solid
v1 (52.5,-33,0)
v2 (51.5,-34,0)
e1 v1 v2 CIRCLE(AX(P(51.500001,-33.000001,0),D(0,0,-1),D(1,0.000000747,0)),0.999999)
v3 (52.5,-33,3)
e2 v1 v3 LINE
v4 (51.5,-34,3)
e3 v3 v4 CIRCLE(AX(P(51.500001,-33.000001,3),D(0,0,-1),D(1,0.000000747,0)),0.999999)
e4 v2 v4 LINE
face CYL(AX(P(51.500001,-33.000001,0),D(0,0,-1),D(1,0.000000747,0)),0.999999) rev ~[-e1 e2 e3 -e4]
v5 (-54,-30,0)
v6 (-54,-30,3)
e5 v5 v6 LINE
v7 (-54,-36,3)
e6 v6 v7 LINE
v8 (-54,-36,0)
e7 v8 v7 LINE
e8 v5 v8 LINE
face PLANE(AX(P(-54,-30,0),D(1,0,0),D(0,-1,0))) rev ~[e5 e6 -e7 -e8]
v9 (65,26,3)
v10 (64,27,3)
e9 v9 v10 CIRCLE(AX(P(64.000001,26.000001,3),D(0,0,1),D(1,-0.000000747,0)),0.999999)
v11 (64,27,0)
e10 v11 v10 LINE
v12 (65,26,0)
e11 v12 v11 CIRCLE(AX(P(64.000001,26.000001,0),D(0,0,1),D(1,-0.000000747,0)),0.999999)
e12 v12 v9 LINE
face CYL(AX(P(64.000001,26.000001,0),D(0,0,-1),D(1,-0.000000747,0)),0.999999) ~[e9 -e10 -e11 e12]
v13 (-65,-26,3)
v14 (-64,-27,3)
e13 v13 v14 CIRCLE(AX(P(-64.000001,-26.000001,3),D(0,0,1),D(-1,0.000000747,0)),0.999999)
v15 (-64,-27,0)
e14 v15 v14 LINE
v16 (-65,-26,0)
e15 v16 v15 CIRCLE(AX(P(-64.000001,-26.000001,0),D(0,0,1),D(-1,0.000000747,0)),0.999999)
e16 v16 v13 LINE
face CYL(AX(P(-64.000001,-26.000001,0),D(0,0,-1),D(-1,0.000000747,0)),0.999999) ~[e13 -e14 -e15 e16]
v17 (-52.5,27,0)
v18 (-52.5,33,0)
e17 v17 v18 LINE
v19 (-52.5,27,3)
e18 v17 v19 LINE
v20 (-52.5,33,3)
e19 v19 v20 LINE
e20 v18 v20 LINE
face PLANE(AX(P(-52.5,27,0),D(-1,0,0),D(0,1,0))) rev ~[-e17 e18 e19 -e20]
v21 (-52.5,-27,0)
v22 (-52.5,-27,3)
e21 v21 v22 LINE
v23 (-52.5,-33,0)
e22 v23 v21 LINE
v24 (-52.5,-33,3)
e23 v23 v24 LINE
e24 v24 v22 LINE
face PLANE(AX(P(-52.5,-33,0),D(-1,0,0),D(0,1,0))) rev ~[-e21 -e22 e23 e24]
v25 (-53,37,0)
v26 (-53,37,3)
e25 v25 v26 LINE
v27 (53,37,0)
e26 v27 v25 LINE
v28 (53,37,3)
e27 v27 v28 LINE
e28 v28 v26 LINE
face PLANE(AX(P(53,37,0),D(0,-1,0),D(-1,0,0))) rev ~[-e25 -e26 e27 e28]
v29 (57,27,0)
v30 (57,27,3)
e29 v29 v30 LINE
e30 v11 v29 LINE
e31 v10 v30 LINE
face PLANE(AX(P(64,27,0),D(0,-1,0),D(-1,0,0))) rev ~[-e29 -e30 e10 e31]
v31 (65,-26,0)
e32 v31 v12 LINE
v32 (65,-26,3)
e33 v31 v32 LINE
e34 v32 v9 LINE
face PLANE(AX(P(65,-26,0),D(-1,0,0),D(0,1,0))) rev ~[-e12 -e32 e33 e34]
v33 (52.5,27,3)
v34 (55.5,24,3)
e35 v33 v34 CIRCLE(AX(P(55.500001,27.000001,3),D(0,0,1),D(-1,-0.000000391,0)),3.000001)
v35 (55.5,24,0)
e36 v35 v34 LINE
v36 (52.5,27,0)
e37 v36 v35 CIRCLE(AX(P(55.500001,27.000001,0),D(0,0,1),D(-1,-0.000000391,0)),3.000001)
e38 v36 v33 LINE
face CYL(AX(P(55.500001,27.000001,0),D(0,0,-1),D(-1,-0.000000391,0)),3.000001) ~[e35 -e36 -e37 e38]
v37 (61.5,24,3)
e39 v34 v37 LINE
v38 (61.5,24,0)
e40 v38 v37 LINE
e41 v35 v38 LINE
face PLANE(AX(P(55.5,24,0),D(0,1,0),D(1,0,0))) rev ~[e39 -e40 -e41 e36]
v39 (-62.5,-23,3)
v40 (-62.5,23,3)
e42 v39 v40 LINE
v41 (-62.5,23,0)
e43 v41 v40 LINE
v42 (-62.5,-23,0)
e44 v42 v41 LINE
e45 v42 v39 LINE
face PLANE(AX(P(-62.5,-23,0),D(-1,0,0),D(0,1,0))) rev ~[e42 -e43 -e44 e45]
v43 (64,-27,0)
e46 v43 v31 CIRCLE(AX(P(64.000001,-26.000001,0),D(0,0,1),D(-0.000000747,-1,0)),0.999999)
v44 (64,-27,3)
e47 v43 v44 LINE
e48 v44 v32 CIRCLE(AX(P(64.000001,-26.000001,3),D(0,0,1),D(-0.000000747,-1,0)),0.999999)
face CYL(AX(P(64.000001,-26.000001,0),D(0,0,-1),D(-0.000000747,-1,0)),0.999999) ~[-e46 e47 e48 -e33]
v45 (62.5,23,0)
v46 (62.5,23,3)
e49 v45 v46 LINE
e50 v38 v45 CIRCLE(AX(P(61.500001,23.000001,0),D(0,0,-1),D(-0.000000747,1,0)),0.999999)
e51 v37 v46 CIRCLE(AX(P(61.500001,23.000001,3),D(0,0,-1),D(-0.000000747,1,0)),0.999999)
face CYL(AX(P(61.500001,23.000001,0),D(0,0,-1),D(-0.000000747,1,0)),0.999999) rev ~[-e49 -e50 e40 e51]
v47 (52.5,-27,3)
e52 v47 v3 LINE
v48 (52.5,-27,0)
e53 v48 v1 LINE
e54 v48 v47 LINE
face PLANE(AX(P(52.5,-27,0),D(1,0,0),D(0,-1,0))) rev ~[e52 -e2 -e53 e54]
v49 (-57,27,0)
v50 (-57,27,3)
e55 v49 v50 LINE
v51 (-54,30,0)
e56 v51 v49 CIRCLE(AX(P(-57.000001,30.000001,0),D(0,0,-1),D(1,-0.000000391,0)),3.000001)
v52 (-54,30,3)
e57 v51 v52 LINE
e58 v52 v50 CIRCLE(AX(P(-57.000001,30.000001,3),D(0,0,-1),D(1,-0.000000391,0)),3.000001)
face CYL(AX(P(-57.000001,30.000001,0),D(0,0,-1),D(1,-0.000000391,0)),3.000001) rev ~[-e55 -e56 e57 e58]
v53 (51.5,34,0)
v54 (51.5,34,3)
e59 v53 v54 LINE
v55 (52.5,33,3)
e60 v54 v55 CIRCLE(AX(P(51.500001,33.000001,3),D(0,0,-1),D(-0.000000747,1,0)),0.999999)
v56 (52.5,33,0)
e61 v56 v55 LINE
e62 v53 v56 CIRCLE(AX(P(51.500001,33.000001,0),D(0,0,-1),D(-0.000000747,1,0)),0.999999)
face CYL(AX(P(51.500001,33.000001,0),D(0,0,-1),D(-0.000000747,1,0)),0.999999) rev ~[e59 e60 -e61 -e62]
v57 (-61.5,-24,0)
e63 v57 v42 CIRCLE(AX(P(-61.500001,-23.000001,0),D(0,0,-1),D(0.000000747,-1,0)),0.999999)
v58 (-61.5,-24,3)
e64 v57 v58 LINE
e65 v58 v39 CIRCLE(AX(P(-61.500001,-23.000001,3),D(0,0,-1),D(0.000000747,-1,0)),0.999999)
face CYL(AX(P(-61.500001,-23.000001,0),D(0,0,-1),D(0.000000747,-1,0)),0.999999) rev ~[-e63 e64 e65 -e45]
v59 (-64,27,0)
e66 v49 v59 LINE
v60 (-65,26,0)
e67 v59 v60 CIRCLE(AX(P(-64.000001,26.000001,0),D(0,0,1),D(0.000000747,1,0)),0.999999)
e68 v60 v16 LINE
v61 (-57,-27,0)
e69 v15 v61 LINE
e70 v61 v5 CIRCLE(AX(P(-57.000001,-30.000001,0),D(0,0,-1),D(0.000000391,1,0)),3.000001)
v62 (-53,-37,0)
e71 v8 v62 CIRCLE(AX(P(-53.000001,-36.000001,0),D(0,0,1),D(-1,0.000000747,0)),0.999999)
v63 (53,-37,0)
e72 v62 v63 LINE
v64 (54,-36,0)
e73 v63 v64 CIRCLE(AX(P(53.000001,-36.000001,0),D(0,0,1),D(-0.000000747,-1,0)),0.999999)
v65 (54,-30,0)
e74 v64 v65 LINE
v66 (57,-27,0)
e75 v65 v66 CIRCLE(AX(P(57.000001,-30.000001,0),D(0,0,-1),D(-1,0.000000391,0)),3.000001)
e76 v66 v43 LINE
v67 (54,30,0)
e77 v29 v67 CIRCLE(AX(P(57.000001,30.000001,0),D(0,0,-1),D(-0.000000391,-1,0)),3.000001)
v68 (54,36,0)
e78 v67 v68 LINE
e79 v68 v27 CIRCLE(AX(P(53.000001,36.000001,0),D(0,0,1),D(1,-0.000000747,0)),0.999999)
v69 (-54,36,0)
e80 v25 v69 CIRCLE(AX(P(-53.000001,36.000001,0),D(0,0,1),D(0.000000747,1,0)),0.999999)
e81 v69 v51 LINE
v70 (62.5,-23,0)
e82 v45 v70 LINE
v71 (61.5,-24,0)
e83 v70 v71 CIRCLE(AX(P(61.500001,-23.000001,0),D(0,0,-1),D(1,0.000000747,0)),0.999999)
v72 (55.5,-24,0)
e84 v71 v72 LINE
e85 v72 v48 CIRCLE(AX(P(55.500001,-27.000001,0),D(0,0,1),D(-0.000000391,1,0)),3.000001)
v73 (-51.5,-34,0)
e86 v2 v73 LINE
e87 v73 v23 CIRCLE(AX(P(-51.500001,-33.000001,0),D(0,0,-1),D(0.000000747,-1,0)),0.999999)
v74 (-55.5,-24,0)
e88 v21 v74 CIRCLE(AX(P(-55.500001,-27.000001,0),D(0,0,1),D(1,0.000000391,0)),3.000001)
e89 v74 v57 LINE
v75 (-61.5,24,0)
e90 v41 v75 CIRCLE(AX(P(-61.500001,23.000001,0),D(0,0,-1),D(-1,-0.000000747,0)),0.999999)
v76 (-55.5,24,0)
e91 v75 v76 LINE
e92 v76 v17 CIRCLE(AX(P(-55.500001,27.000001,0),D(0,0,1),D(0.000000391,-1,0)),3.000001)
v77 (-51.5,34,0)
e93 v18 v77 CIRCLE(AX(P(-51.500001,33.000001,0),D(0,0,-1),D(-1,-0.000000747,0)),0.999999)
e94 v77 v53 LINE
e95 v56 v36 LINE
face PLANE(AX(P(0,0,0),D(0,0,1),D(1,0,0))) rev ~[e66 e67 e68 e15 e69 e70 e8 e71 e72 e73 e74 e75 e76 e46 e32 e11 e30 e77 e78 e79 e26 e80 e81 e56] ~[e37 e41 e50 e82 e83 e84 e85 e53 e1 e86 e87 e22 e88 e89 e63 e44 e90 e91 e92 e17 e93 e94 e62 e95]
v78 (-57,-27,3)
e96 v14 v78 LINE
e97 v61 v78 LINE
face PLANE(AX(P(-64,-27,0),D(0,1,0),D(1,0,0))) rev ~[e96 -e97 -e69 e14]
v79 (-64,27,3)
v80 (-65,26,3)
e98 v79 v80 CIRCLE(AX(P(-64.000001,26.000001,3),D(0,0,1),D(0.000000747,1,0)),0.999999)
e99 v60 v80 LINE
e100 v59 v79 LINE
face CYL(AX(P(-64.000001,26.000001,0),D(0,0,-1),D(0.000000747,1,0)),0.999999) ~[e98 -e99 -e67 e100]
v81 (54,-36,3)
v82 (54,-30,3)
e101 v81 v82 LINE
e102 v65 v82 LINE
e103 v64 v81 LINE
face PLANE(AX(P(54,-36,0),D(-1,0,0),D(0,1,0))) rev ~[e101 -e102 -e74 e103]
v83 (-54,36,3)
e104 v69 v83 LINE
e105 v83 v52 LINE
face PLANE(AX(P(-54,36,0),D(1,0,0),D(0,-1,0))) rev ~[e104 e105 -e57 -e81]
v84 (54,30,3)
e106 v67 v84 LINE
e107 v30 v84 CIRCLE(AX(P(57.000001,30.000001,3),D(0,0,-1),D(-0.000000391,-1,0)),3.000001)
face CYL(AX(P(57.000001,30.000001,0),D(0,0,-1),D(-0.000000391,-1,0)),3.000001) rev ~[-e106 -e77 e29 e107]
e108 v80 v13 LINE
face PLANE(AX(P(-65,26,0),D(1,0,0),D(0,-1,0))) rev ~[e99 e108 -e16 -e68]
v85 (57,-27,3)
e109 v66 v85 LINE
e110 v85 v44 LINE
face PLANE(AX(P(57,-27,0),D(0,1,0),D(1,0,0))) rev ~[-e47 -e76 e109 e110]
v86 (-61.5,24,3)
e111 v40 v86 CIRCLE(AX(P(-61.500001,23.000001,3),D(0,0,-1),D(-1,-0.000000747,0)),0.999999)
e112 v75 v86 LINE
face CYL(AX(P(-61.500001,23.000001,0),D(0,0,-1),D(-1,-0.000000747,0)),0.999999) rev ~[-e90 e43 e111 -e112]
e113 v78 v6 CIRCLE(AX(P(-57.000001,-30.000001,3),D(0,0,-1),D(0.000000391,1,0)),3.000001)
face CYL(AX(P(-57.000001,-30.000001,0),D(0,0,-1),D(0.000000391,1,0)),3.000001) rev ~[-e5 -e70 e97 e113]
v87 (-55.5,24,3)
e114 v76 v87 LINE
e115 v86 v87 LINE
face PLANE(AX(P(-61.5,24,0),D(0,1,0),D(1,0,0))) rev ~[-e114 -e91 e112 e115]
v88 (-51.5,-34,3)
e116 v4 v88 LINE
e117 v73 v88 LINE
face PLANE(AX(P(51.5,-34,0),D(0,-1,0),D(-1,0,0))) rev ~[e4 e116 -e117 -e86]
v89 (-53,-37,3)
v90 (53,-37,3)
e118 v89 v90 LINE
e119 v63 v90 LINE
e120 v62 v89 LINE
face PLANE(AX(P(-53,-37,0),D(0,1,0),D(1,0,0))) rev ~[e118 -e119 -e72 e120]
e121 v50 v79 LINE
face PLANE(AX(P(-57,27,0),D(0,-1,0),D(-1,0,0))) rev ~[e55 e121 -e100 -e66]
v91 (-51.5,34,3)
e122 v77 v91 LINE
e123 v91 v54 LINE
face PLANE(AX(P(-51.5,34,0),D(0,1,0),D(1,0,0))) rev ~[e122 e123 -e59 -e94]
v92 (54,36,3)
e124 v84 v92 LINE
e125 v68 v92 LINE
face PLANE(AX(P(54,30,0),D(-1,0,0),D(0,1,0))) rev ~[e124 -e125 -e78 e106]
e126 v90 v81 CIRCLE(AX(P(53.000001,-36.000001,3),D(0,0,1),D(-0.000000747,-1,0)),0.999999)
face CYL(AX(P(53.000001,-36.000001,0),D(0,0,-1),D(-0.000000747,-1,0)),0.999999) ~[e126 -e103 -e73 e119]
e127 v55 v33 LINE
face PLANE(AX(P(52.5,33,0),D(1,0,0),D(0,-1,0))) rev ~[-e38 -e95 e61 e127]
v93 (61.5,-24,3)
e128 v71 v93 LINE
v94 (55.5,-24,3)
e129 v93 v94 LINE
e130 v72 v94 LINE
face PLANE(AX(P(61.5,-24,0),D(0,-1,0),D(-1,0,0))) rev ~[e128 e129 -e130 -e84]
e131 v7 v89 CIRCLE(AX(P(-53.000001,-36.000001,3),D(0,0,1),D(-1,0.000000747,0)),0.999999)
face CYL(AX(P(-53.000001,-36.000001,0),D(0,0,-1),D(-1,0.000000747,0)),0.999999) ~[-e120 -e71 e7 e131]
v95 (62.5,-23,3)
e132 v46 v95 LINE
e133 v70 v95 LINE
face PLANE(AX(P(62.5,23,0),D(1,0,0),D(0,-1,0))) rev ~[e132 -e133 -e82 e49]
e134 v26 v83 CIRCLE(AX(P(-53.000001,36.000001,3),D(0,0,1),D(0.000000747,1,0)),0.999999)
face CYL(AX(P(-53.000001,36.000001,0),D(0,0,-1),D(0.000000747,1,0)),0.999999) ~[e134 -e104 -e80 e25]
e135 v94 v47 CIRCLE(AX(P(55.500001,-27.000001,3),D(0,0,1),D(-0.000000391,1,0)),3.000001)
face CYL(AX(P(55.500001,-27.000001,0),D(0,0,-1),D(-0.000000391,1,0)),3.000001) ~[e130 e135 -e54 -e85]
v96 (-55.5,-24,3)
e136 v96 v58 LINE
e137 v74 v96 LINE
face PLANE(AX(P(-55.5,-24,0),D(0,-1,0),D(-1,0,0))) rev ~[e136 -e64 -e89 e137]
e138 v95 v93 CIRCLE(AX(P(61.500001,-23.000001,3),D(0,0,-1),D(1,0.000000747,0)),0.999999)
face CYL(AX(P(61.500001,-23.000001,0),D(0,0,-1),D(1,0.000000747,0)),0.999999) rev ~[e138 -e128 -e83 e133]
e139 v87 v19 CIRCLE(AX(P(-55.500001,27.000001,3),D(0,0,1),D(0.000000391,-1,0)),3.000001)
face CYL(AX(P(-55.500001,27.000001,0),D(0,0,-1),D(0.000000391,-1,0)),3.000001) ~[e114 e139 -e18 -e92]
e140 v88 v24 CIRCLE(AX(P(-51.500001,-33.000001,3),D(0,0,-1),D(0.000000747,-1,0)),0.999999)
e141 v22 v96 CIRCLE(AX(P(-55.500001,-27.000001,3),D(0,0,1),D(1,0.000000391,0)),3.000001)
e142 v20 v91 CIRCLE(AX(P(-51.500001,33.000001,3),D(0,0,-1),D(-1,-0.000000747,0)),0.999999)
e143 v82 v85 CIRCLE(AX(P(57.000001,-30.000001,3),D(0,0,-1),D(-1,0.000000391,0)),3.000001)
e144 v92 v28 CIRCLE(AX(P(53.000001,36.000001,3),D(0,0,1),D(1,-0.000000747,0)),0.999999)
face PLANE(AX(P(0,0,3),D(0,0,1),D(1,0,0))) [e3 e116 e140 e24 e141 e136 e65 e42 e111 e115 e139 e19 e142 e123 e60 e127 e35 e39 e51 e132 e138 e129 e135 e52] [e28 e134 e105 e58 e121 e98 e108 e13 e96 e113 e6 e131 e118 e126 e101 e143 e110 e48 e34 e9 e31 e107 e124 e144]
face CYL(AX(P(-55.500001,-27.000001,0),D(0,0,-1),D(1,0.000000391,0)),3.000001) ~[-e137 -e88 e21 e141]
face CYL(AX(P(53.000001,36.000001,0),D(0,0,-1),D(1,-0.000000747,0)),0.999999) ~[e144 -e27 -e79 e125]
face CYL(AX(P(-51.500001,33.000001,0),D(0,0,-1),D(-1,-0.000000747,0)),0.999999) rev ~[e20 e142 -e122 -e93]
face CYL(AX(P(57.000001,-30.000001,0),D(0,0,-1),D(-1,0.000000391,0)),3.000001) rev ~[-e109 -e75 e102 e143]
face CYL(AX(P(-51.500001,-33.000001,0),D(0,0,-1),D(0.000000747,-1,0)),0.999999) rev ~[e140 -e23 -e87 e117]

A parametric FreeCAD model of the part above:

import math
import FreeCAD as App
import Part
import Sketcher
from FreeCAD import Vector
Q = App.Units.Quantity

doc = App.newDocument("Part")
body = doc.addObject("PartDesign::Body", "Body")

sketch1 = body.newObject("Sketcher::SketchObject", "Sketch")
sketch1.AttachmentSupport = (doc.getObject("XY_Plane"), [""])
sketch1.MapMode = "FlatFace"
sketch1.addGeometry([
    Part.LineSegment(Vector(53, 37, 0), Vector(-53, 37, 0)),
    Part.ArcOfCircle(Part.Circle(Vector(-53, 36, 0), Vector(0, 0, 1), 1), math.radians(90), math.radians(180)),
    Part.LineSegment(Vector(-54, 36, 0), Vector(-54, 30, 0)),
    Part.ArcOfCircle(Part.Circle(Vector(-57, 30, 0), Vector(0, 0, 1), 3), math.radians(-90), math.radians(0)),
    Part.LineSegment(Vector(-57, 27, 0), Vector(-64, 27, 0)),
    Part.ArcOfCircle(Part.Circle(Vector(-64, 26, 0), Vector(0, 0, 1), 1), math.radians(90), math.radians(180)),
    Part.LineSegment(Vector(-65, 26, 0), Vector(-65, -26, 0)),
    Part.ArcOfCircle(Part.Circle(Vector(-64, -26, 0), Vector(0, 0, 1), 1), math.radians(180), math.radians(270)),
    Part.LineSegment(Vector(-64, -27, 0), Vector(-57, -27, 0)),
    Part.ArcOfCircle(Part.Circle(Vector(-57, -30, 0), Vector(0, 0, 1), 3), math.radians(0), math.radians(90)),
    Part.LineSegment(Vector(-54, -30, 0), Vector(-54, -36, 0)),
    Part.ArcOfCircle(Part.Circle(Vector(-53, -36, 0), Vector(0, 0, 1), 1), math.radians(180), math.radians(270)),
    Part.LineSegment(Vector(-53, -37, 0), Vector(53, -37, 0)),
    Part.ArcOfCircle(Part.Circle(Vector(53, -36, 0), Vector(0, 0, 1), 1), math.radians(-90), math.radians(0)),
    Part.LineSegment(Vector(54, -36, 0), Vector(54, -30, 0)),
    Part.ArcOfCircle(Part.Circle(Vector(57, -30, 0), Vector(0, 0, 1), 3), math.radians(90), math.radians(180)),
    Part.LineSegment(Vector(57, -27, 0), Vector(64, -27, 0)),
    Part.ArcOfCircle(Part.Circle(Vector(64, -26, 0), Vector(0, 0, 1), 1), math.radians(-90), math.radians(0)),
    Part.LineSegment(Vector(65, -26, 0), Vector(65, 26, 0)),
    Part.ArcOfCircle(Part.Circle(Vector(64, 26, 0), Vector(0, 0, 1), 1), math.radians(0), math.radians(90)),
    Part.LineSegment(Vector(64, 27, 0), Vector(57, 27, 0)),
    Part.ArcOfCircle(Part.Circle(Vector(57, 30, 0), Vector(0, 0, 1), 3), math.radians(-180), math.radians(-90)),
    Part.LineSegment(Vector(54, 30, 0), Vector(54, 36, 0)),
    Part.ArcOfCircle(Part.Circle(Vector(53, 36, 0), Vector(0, 0, 1), 1), math.radians(0), math.radians(90)),
    Part.LineSegment(Vector(-52.5, 27, 0), Vector(-52.5, 33, 0)),
    Part.ArcOfCircle(Part.Circle(Vector(-51.5, 33, 0), Vector(0, 0, 1), 1), math.radians(90), math.radians(180)),
    Part.LineSegment(Vector(-51.5, 34, 0), Vector(51.5, 34, 0)),
    Part.ArcOfCircle(Part.Circle(Vector(51.5, 33, 0), Vector(0, 0, 1), 1), math.radians(0), math.radians(90)),
    Part.LineSegment(Vector(52.5, 33, 0), Vector(52.5, 27, 0)),
    Part.ArcOfCircle(Part.Circle(Vector(55.5, 27, 0), Vector(0, 0, 1), 3), math.radians(-180), math.radians(-90)),
    Part.LineSegment(Vector(55.5, 24, 0), Vector(61.5, 24, 0)),
    Part.ArcOfCircle(Part.Circle(Vector(61.5, 23, 0), Vector(0, 0, 1), 1), math.radians(0), math.radians(90)),
    Part.LineSegment(Vector(62.5, 23, 0), Vector(62.5, -23, 0)),
    Part.ArcOfCircle(Part.Circle(Vector(61.5, -23, 0), Vector(0, 0, 1), 1), math.radians(-90), math.radians(0)),
    Part.LineSegment(Vector(61.5, -24, 0), Vector(55.5, -24, 0)),
    Part.ArcOfCircle(Part.Circle(Vector(55.5, -27, 0), Vector(0, 0, 1), 3), math.radians(90), math.radians(180)),
    Part.LineSegment(Vector(52.5, -27, 0), Vector(52.5, -33, 0)),
    Part.ArcOfCircle(Part.Circle(Vector(51.5, -33, 0), Vector(0, 0, 1), 1), math.radians(-90), math.radians(0)),
    Part.LineSegment(Vector(51.5, -34, 0), Vector(-51.5, -34, 0)),
    Part.ArcOfCircle(Part.Circle(Vector(-51.5, -33, 0), Vector(0, 0, 1), 1), math.radians(180), math.radians(270)),
    Part.LineSegment(Vector(-52.5, -33, 0), Vector(-52.5, -27, 0)),
    Part.ArcOfCircle(Part.Circle(Vector(-55.5, -27, 0), Vector(0, 0, 1), 3), math.radians(0), math.radians(90)),
    Part.LineSegment(Vector(-55.5, -24, 0), Vector(-61.5, -24, 0)),
    Part.ArcOfCircle(Part.Circle(Vector(-61.5, -23, 0), Vector(0, 0, 1), 1), math.radians(180), math.radians(270)),
    Part.LineSegment(Vector(-62.5, -23, 0), Vector(-62.5, 23, 0)),
    Part.ArcOfCircle(Part.Circle(Vector(-61.5, 23, 0), Vector(0, 0, 1), 1), math.radians(90), math.radians(180)),
    Part.LineSegment(Vector(-61.5, 24, 0), Vector(-55.5, 24, 0)),
    Part.ArcOfCircle(Part.Circle(Vector(-55.5, 27, 0), Vector(0, 0, 1), 3), math.radians(-90), math.radians(0)),
], False)
sketch1.addConstraint([
    Sketcher.Constraint("Tangent", 0, 2, 1, 1),
    Sketcher.Constraint("Tangent", 1, 2, 2, 1),
    Sketcher.Constraint("Tangent", 2, 2, 3, 2),
    Sketcher.Constraint("Tangent", 3, 1, 4, 1),
    Sketcher.Constraint("Tangent", 4, 2, 5, 1),
    Sketcher.Constraint("Tangent", 5, 2, 6, 1),
    Sketcher.Constraint("Tangent", 6, 2, 7, 1),
    Sketcher.Constraint("Tangent", 7, 2, 8, 1),
    Sketcher.Constraint("Tangent", 8, 2, 9, 2),
    Sketcher.Constraint("Tangent", 9, 1, 10, 1),
    Sketcher.Constraint("Tangent", 10, 2, 11, 1),
    Sketcher.Constraint("Tangent", 11, 2, 12, 1),
    Sketcher.Constraint("Tangent", 12, 2, 13, 1),
    Sketcher.Constraint("Tangent", 13, 2, 14, 1),
    Sketcher.Constraint("Tangent", 14, 2, 15, 2),
    Sketcher.Constraint("Tangent", 15, 1, 16, 1),
    Sketcher.Constraint("Tangent", 16, 2, 17, 1),
    Sketcher.Constraint("Tangent", 17, 2, 18, 1),
    Sketcher.Constraint("Tangent", 18, 2, 19, 1),
    Sketcher.Constraint("Tangent", 19, 2, 20, 1),
    Sketcher.Constraint("Tangent", 20, 2, 21, 2),
    Sketcher.Constraint("Tangent", 21, 1, 22, 1),
    Sketcher.Constraint("Tangent", 22, 2, 23, 1),
    Sketcher.Constraint("Tangent", 23, 2, 0, 1),
    Sketcher.Constraint("Tangent", 24, 2, 25, 2),
    Sketcher.Constraint("Tangent", 25, 1, 26, 1),
    Sketcher.Constraint("Tangent", 26, 2, 27, 2),
    Sketcher.Constraint("Tangent", 27, 1, 28, 1),
    Sketcher.Constraint("Tangent", 28, 2, 29, 1),
    Sketcher.Constraint("Tangent", 29, 2, 30, 1),
    Sketcher.Constraint("Tangent", 30, 2, 31, 2),
    Sketcher.Constraint("Tangent", 31, 1, 32, 1),
    Sketcher.Constraint("Tangent", 32, 2, 33, 2),
    Sketcher.Constraint("Tangent", 33, 1, 34, 1),
    Sketcher.Constraint("Tangent", 34, 2, 35, 1),
    Sketcher.Constraint("Tangent", 35, 2, 36, 1),
    Sketcher.Constraint("Tangent", 36, 2, 37, 2),
    Sketcher.Constraint("Tangent", 37, 1, 38, 1),
    Sketcher.Constraint("Tangent", 38, 2, 39, 2),
    Sketcher.Constraint("Tangent", 39, 1, 40, 1),
    Sketcher.Constraint("Tangent", 40, 2, 41, 1),
    Sketcher.Constraint("Tangent", 41, 2, 42, 1),
    Sketcher.Constraint("Tangent", 42, 2, 43, 2),
    Sketcher.Constraint("Tangent", 43, 1, 44, 1),
    Sketcher.Constraint("Tangent", 44, 2, 45, 2),
    Sketcher.Constraint("Tangent", 45, 1, 46, 1),
    Sketcher.Constraint("Tangent", 46, 2, 47, 1),
    Sketcher.Constraint("Tangent", 47, 2, 24, 1),
    Sketcher.Constraint("Horizontal", 0),
    Sketcher.Constraint("Vertical", 2),
    Sketcher.Constraint("Horizontal", 4),
    Sketcher.Constraint("Vertical", 6),
    Sketcher.Constraint("Horizontal", 8),
    Sketcher.Constraint("Vertical", 10),
    Sketcher.Constraint("Horizontal", 12),
    Sketcher.Constraint("Vertical", 14),
    Sketcher.Constraint("Horizontal", 16),
    Sketcher.Constraint("Vertical", 18),
    Sketcher.Constraint("Horizontal", 20),
    Sketcher.Constraint("Vertical", 22),
    Sketcher.Constraint("Vertical", 24),
    Sketcher.Constraint("Horizontal", 26),
    Sketcher.Constraint("Vertical", 28),
    Sketcher.Constraint("Horizontal", 30),
    Sketcher.Constraint("Vertical", 32),
    Sketcher.Constraint("Horizontal", 34),
    Sketcher.Constraint("Vertical", 36),
    Sketcher.Constraint("Horizontal", 38),
    Sketcher.Constraint("Vertical", 40),
    Sketcher.Constraint("Horizontal", 42),
    Sketcher.Constraint("Vertical", 44),
    Sketcher.Constraint("Horizontal", 46),
    Sketcher.Constraint("Equal", 1, 5),
    Sketcher.Constraint("Equal", 5, 7),
    Sketcher.Constraint("Equal", 3, 9),
    Sketcher.Constraint("Equal", 7, 11),
    Sketcher.Constraint("Equal", 11, 13),
    Sketcher.Constraint("Equal", 9, 15),
    Sketcher.Constraint("Equal", 13, 17),
    Sketcher.Constraint("Equal", 17, 19),
    Sketcher.Constraint("Equal", 15, 21),
    Sketcher.Constraint("Equal", 19, 23),
    Sketcher.Constraint("Equal", 23, 25),
    Sketcher.Constraint("Equal", 25, 27),
    Sketcher.Constraint("Equal", 21, 29),
    Sketcher.Constraint("Equal", 27, 31),
    Sketcher.Constraint("Equal", 31, 33),
    Sketcher.Constraint("Equal", 29, 35),
    Sketcher.Constraint("Equal", 33, 37),
    Sketcher.Constraint("Equal", 37, 39),
    Sketcher.Constraint("Equal", 35, 41),
    Sketcher.Constraint("Equal", 39, 43),
    Sketcher.Constraint("Equal", 43, 45),
    Sketcher.Constraint("Equal", 41, 47),
    Sketcher.Constraint("Symmetric", 1, 3, 13, 3, -1, 1),
    Sketcher.Constraint("Symmetric", 5, 3, 17, 3, -1, 1),
    Sketcher.Constraint("Symmetric", 9, 3, 21, 3, -1, 1),
    Sketcher.Constraint("Symmetric", 25, 3, 37, 3, -1, 1),
    Sketcher.Constraint("Symmetric", 29, 3, 41, 3, -1, 1),
    Sketcher.Constraint("Symmetric", 33, 3, 45, 3, -1, 1),
    Sketcher.Constraint("Symmetric", 9, 3, 15, 3, -2),
    Sketcher.Constraint("Symmetric", 35, 3, 41, 3, -2),
    Sketcher.Constraint("Horizontal", 47, 3, 3, 1),
    Sketcher.Constraint("Equal", 46, 2),
    Sketcher.Constraint("Equal", 22, 24),
    Sketcher.Constraint("Radius", 1, Q("0.999999 mm")),
    Sketcher.Constraint("Radius", 3, Q("3.000001 mm")),
    Sketcher.Constraint("DistanceX", 0, 2, 0, 1, Q("106 mm")),
    Sketcher.Constraint("DistanceX", 4, 2, 4, 1, Q("7 mm")),
    Sketcher.Constraint("DistanceX", 26, 1, 26, 2, Q("103 mm")),
    Sketcher.Constraint("DistanceX", 30, 1, 30, 2, Q("6 mm")),
    Sketcher.Constraint("DistanceY", 6, 2, 6, 1, Q("52 mm")),
])
pad1 = body.newObject("PartDesign::Pad", "Pad")
pad1.Profile = sketch1
pad1.Length = 3

doc.recompute()
